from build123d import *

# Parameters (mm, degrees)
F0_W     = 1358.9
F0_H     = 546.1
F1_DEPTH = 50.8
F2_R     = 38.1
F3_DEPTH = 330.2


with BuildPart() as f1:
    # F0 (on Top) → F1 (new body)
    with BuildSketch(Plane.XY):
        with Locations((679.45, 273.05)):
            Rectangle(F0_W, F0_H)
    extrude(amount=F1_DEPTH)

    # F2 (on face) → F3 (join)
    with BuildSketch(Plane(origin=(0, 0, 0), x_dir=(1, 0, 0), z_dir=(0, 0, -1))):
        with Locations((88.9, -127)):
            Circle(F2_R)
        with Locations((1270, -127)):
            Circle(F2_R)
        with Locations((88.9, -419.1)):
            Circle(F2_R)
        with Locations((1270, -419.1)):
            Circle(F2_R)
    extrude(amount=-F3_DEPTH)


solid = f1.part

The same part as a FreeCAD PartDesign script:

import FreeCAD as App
import Part
import Sketcher
from FreeCAD import Vector
Q = App.Units.Quantity


def add_polygon(sketch, points):
    """Adds a closed chain of lines whose ends are joined by coincident constraints."""
    first, n = sketch.GeometryCount, len(points)
    for a, b in zip(points, points[1:] + points[:1]):
        sketch.addGeometry(Part.LineSegment(App.Vector(*a, 0), App.Vector(*b, 0)), False)
    for i in range(n):
        sketch.addConstraint(Sketcher.Constraint("Coincident", first + i, 2, first + (i + 1) % n, 1))

doc = App.newDocument("Part")
params = doc.addObject("Spreadsheet::Sheet", "Params")
for row, (alias, value) in enumerate([
    ("sketch1_width", "53.5 in"),
    ("sketch1_height", "21.5 in"),
    ("pad1_length", "2 in"),
    ("sketch2_diameter", "3 in"),
    ("pad2_length", "13 in"),
], start=1):
    params.set(f"A{row}", alias)
    params.set(f"B{row}", "=" + value)
    params.setAlias(f"B{row}", alias)

body = doc.addObject("PartDesign::Body", "Body")

# Sketch on XY plane
sketch1 = doc.addObject("Sketcher::SketchObject", "Sketch")
body.addObject(sketch1)
sketch1.AttachmentSupport = (doc.XY_Plane, [""])
sketch1.MapMode = "FlatFace"
add_polygon(sketch1, [(0, 546), (0, 0), (1359, 0), (1359, 546)])  # lines 0-3
sketch1.addConstraint(Sketcher.Constraint("Vertical", 0))
sketch1.addConstraint(Sketcher.Constraint("Horizontal", 1))
sketch1.addConstraint(Sketcher.Constraint("Vertical", 2))
sketch1.addConstraint(Sketcher.Constraint("Horizontal", 3))
sketch1.addConstraint(Sketcher.Constraint("Coincident", 0, 2, -1, 1))
sketch1.addConstraint(Sketcher.Constraint("DistanceX", 1, 1, 1, 2, Q("53.5 in")))
sketch1.addConstraint(Sketcher.Constraint("DistanceY", 0, 2, 0, 1, Q("21.5 in")))
sketch1.setExpression("Constraints[9]", "Params.sketch1_width")
sketch1.setExpression("Constraints[10]", "Params.sketch1_height")
pad1 = doc.addObject("PartDesign::Pad", "Pad")
body.addObject(pad1)
pad1.Profile = sketch1
pad1.setExpression("Length", "Params.pad1_length")

# Sketch on XY plane
sketch2 = doc.addObject("Sketcher::SketchObject", "Sketch001")
body.addObject(sketch2)
sketch2.AttachmentSupport = (doc.XY_Plane, [""])
sketch2.MapMode = "FlatFace"
sketch2.addGeometry(Part.Circle(Vector(89, 127, 0), Vector(0, 0, 1), 38), False)
sketch2.addGeometry(Part.Circle(Vector(1270, 127, 0), Vector(0, 0, 1), 38), False)
sketch2.addGeometry(Part.Circle(Vector(89, 419, 0), Vector(0, 0, 1), 38), False)
sketch2.addGeometry(Part.Circle(Vector(1270, 419, 0), Vector(0, 0, 1), 38), False)
sketch2.addConstraint(Sketcher.Constraint("Equal", 0, 1))
sketch2.addConstraint(Sketcher.Constraint("Equal", 1, 2))
sketch2.addConstraint(Sketcher.Constraint("Equal", 2, 3))
sketch2.addConstraint(Sketcher.Constraint("Horizontal", 0, 3, 1, 3))
sketch2.addConstraint(Sketcher.Constraint("Horizontal", 2, 3, 3, 3))
sketch2.addConstraint(Sketcher.Constraint("Vertical", 0, 3, 2, 3))
sketch2.addConstraint(Sketcher.Constraint("Vertical", 1, 3, 3, 3))
sketch2.addConstraint(Sketcher.Constraint("Diameter", 0, Q("3 in")))
sketch2.addConstraint(Sketcher.Constraint("DistanceY", -1, 1, 0, 3, Q("5 in")))
sketch2.addConstraint(Sketcher.Constraint("DistanceX", -1, 1, 1, 3, Q("50 in")))
sketch2.addConstraint(Sketcher.Constraint("DistanceX", -1, 1, 0, 3, Q("3.5 in")))
sketch2.addConstraint(Sketcher.Constraint("DistanceY", -1, 1, 2, 3, Q("16.5 in")))
sketch2.setExpression("Constraints[7]", "Params.sketch2_diameter")
pad2 = doc.addObject("PartDesign::Pad", "Pad001")
body.addObject(pad2)
pad2.Profile = sketch2
pad2.setExpression("Length", "Params.pad2_length")

doc.recompute()
